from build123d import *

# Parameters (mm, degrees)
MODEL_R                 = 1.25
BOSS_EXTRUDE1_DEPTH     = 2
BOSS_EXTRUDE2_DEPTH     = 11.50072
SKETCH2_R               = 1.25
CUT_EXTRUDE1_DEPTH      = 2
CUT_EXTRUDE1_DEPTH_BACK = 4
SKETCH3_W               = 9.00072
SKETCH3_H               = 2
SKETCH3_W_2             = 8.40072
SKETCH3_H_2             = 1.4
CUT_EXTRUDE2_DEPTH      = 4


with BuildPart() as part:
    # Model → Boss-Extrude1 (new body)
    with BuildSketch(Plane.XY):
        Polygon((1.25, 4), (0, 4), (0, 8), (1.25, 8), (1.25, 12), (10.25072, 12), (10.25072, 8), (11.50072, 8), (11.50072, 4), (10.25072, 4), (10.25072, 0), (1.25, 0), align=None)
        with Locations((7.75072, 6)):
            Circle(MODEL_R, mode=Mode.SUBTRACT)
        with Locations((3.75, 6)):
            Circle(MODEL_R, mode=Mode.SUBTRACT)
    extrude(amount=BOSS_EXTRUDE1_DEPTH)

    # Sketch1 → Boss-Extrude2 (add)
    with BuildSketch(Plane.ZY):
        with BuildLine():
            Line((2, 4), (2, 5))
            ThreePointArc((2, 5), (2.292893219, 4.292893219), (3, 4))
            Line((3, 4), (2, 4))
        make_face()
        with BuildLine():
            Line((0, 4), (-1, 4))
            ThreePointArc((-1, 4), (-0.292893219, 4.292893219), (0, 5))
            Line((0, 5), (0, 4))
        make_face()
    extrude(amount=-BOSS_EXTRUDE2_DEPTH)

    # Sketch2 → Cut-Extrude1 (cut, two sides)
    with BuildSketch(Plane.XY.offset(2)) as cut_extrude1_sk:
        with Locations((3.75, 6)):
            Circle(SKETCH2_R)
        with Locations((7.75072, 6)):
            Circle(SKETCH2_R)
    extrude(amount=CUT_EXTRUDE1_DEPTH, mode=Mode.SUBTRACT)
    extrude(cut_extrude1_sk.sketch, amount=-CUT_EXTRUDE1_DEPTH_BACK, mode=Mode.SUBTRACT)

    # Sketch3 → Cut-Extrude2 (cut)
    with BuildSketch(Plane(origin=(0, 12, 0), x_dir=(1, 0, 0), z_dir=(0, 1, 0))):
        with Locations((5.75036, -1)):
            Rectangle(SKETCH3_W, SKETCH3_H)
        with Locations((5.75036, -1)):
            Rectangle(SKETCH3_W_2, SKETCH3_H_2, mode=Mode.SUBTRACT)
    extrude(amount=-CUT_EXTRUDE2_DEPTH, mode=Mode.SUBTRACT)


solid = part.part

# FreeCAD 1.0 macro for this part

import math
import FreeCAD as App
import Part
import Sketcher
from FreeCAD import Vector

doc = App.newDocument("Part")
params = doc.addObject("Spreadsheet::Sheet", "Params")
for row, (alias, value) in enumerate([
    ("sketch1_diameter", "2.5 mm"),
    ("sketch1_height", "4 mm"),
    ("sketch1_width", "1.25 mm"),
    ("pad1_length", "2 mm"),
    ("sketch2_radius", "1 mm"),
    ("pad2_length", "11.50072 mm"),
    ("sketch3_diameter", "2.5 mm"),
    ("sketch4_height", "2 mm"),
    ("sketch4_height2", "1.4 mm"),
    ("pocket2_length", "4 mm"),
], start=1):
    params.set(f"A{row}", alias)
    params.set(f"B{row}", "=" + value)
    params.setAlias(f"B{row}", alias)

body = doc.addObject("PartDesign::Body", "Body")

sketch1 = body.newObject("Sketcher::SketchObject", "Sketch")
sketch1.AttachmentSupport = (doc.getObject("XY_Plane"), [""])
sketch1.MapMode = "FlatFace"
sketch1.addGeometry(Part.LineSegment(Vector(0, 4, 0), Vector(1.2, 4, 0)), False)
sketch1.addGeometry(Part.LineSegment(Vector(1.2, 4, 0), Vector(1.2, 0, 0)), False)
sketch1.addGeometry(Part.LineSegment(Vector(1.2, 0, 0), Vector(10.3, 0, 0)), False)
sketch1.addGeometry(Part.LineSegment(Vector(10.3, 0, 0), Vector(10.3, 4, 0)), False)
sketch1.addGeometry(Part.LineSegment(Vector(10.3, 4, 0), Vector(11.5, 4, 0)), False)
sketch1.addGeometry(Part.LineSegment(Vector(11.5, 4, 0), Vector(11.5, 8, 0)), False)
sketch1.addGeometry(Part.LineSegment(Vector(11.5, 8, 0), Vector(10.3, 8, 0)), False)
sketch1.addGeometry(Part.LineSegment(Vector(10.3, 8, 0), Vector(10.3, 12, 0)), False)
sketch1.addGeometry(Part.LineSegment(Vector(10.3, 12, 0), Vector(1.2, 12, 0)), False)
sketch1.addGeometry(Part.LineSegment(Vector(1.2, 12, 0), Vector(1.2, 8, 0)), False)
sketch1.addGeometry(Part.LineSegment(Vector(1.2, 8, 0), Vector(0, 8, 0)), False)
sketch1.addGeometry(Part.LineSegment(Vector(0, 8, 0), Vector(0, 4, 0)), False)
sketch1.addGeometry(Part.Circle(Vector(7.8, 6, 0), Vector(0, 0, 1), 1.2), False)
sketch1.addGeometry(Part.Circle(Vector(3.8, 6, 0), Vector(0, 0, 1), 1.2), False)
sketch1.addConstraint(Sketcher.Constraint("Coincident", 0, 2, 1, 1))
sketch1.addConstraint(Sketcher.Constraint("Coincident", 1, 2, 2, 1))
sketch1.addConstraint(Sketcher.Constraint("Coincident", 2, 2, 3, 1))
sketch1.addConstraint(Sketcher.Constraint("Coincident", 3, 2, 4, 1))
sketch1.addConstraint(Sketcher.Constraint("Coincident", 4, 2, 5, 1))
sketch1.addConstraint(Sketcher.Constraint("Coincident", 5, 2, 6, 1))
sketch1.addConstraint(Sketcher.Constraint("Coincident", 6, 2, 7, 1))
sketch1.addConstraint(Sketcher.Constraint("Coincident", 7, 2, 8, 1))
sketch1.addConstraint(Sketcher.Constraint("Coincident", 8, 2, 9, 1))
sketch1.addConstraint(Sketcher.Constraint("Coincident", 9, 2, 10, 1))
sketch1.addConstraint(Sketcher.Constraint("Coincident", 10, 2, 11, 1))
sketch1.addConstraint(Sketcher.Constraint("Coincident", 11, 2, 0, 1))
sketch1.addConstraint(Sketcher.Constraint("Horizontal", 0))
sketch1.addConstraint(Sketcher.Constraint("Vertical", 1))
sketch1.addConstraint(Sketcher.Constraint("Horizontal", 2))
sketch1.addConstraint(Sketcher.Constraint("Vertical", 3))
sketch1.addConstraint(Sketcher.Constraint("Horizontal", 4))
sketch1.addConstraint(Sketcher.Constraint("Vertical", 5))
sketch1.addConstraint(Sketcher.Constraint("Horizontal", 6))
sketch1.addConstraint(Sketcher.Constraint("Vertical", 7))
sketch1.addConstraint(Sketcher.Constraint("Horizontal", 8))
sketch1.addConstraint(Sketcher.Constraint("Vertical", 9))
sketch1.addConstraint(Sketcher.Constraint("Horizontal", 10))
sketch1.addConstraint(Sketcher.Constraint("Vertical", 11))
sketch1.addConstraint(Sketcher.Constraint("Equal", 12, 13))
sketch1.addConstraint(Sketcher.Constraint("PointOnObject", 1, 2, -1))
sketch1.addConstraint(Sketcher.Constraint("PointOnObject", 10, 2, -2))
sketch1.addConstraint(Sketcher.Constraint("Horizontal", 12, 3, 13, 3))
sketch1.addConstraint(Sketcher.Constraint("Horizontal", 0, 2, 3, 2))
sketch1.addConstraint(Sketcher.Constraint("Horizontal", 6, 2, 9, 2))
sketch1.addConstraint(Sketcher.Constraint("Vertical", 3, 2, 6, 2))
sketch1.addConstraint(Sketcher.Constraint("Vertical", 1, 2, 8, 2))
sketch1.addConstraint(Sketcher.Constraint("Equal", 0, 4))
sketch1.addConstraint(Sketcher.Constraint("Equal", 3, 5))
sketch1.addConstraint(Sketcher.Constraint("Equal", 5, 7))
sketch1.addConstraint(Sketcher.Constraint("Diameter", 12, 2.5))
sketch1.addConstraint(Sketcher.Constraint("DistanceY", 1, 2, 1, 1, 4.0))
sketch1.addConstraint(Sketcher.Constraint("DistanceY", -1, 1, 12, 3, 6.0))
sketch1.addConstraint(Sketcher.Constraint("DistanceX", 0, 1, 0, 2, 1.25))
sketch1.addConstraint(Sketcher.Constraint("DistanceX", 0, 2, 13, 3, 2.5))
sketch1.addConstraint(Sketcher.Constraint("DistanceX", 12, 3, 2, 2, 2.5))
sketch1.addConstraint(Sketcher.Constraint("DistanceX", 2, 1, 2, 2, 9.00072))
sketch1.setExpression("Constraints[35]", "Params.sketch1_diameter")
sketch1.setExpression("Constraints[36]", "Params.sketch1_height")
sketch1.setExpression("Constraints[38]", "Params.sketch1_width")
pad1 = body.newObject("PartDesign::Pad", "Pad")
pad1.Profile = sketch1
pad1.setExpression("Length", "Params.pad1_length")

sketch2 = body.newObject("Sketcher::SketchObject", "Sketch001")
sketch2.AttachmentSupport = (doc.getObject("YZ_Plane"), [""])
sketch2.MapMode = "FlatFace"
sketch2.addGeometry(Part.LineSegment(Vector(5, 2, 0), Vector(4, 2, 0)), False)
sketch2.addGeometry(Part.LineSegment(Vector(4, 2, 0), Vector(4, 3, 0)), False)
sketch2.addGeometry(Part.ArcOfCircle(Part.Circle(Vector(5, 3, 0), Vector(0, 0, 1), 1), math.radians(-180), math.radians(-90)), False)
sketch2.addGeometry(Part.LineSegment(Vector(4, -1, 0), Vector(4, 0, 0)), False)
sketch2.addGeometry(Part.LineSegment(Vector(4, 0, 0), Vector(5, 0, 0)), False)
sketch2.addGeometry(Part.ArcOfCircle(Part.Circle(Vector(5, -1, 0), Vector(0, 0, 1), 1), math.radians(90), math.radians(180)), False)
sketch2.addConstraint(Sketcher.Constraint("Coincident", 0, 2, 1, 1))
sketch2.addConstraint(Sketcher.Constraint("Tangent", 1, 2, 2, 1))
sketch2.addConstraint(Sketcher.Constraint("Tangent", 2, 2, 0, 1))
sketch2.addConstraint(Sketcher.Constraint("Coincident", 3, 2, 4, 1))
sketch2.addConstraint(Sketcher.Constraint("Tangent", 4, 2, 5, 1))
sketch2.addConstraint(Sketcher.Constraint("Tangent", 5, 2, 3, 1))
sketch2.addConstraint(Sketcher.Constraint("Horizontal", 0))
sketch2.addConstraint(Sketcher.Constraint("Vertical", 1))
sketch2.addConstraint(Sketcher.Constraint("Vertical", 3))
sketch2.addConstraint(Sketcher.Constraint("Horizontal", 4))
sketch2.addConstraint(Sketcher.Constraint("Equal", 2, 5))
sketch2.addConstraint(Sketcher.Constraint("PointOnObject", 3, 2, -1))
sketch2.addConstraint(Sketcher.Constraint("Vertical", 2, 3, 5, 3))
sketch2.addConstraint(Sketcher.Constraint("Radius", 2, 1.0))
sketch2.addConstraint(Sketcher.Constraint("DistanceX", -1, 1, 2, 3, 5.0))
sketch2.addConstraint(Sketcher.Constraint("DistanceY", -1, 1, 2, 3, 3.0))
sketch2.setExpression("Constraints[13]", "Params.sketch2_radius")
pad2 = body.newObject("PartDesign::Pad", "Pad001")
pad2.Profile = sketch2
pad2.setExpression("Length", "Params.pad2_length")

sketch3 = body.newObject("Sketcher::SketchObject", "Sketch002")
sketch3.AttachmentSupport = (doc.getObject("XY_Plane"), [""])
sketch3.MapMode = "FlatFace"
sketch3.AttachmentOffset = App.Placement(Vector(0, 0, 2), App.Rotation())
sketch3.addGeometry(Part.Circle(Vector(3.8, 6, 0), Vector(0, 0, 1), 1.2), False)
sketch3.addGeometry(Part.Circle(Vector(7.8, 6, 0), Vector(0, 0, 1), 1.2), False)
sketch3.addConstraint(Sketcher.Constraint("Equal", 0, 1))
sketch3.addConstraint(Sketcher.Constraint("Horizontal", 0, 3, 1, 3))
sketch3.addConstraint(Sketcher.Constraint("Diameter", 0, 2.5))
sketch3.addConstraint(Sketcher.Constraint("DistanceY", -1, 1, 0, 3, 6.0))
sketch3.addConstraint(Sketcher.Constraint("DistanceX", -1, 1, 0, 3, 3.75))
sketch3.addConstraint(Sketcher.Constraint("DistanceX", -1, 1, 1, 3, 7.75072))
sketch3.setExpression("Constraints[2]", "Params.sketch3_diameter")
pocket1 = body.newObject("PartDesign::Pocket", "Pocket")
pocket1.Profile = sketch3
pocket1.Type = "ThroughAll"
pocket1.Midplane = True

sketch4 = body.newObject("Sketcher::SketchObject", "Sketch003")
sketch4.AttachmentSupport = (doc.getObject("XZ_Plane"), [""])
sketch4.MapMode = "FlatFace"
sketch4.AttachmentOffset = App.Placement(Vector(0, 0, -12), App.Rotation())
sketch4.addGeometry(Part.LineSegment(Vector(1.2, 0, 0), Vector(1.2, 2, 0)), False)
sketch4.addGeometry(Part.LineSegment(Vector(1.2, 2, 0), Vector(10.3, 2, 0)), False)
sketch4.addGeometry(Part.LineSegment(Vector(10.3, 2, 0), Vector(10.3, 0, 0)), False)
sketch4.addGeometry(Part.LineSegment(Vector(10.3, 0, 0), Vector(1.2, 0, 0)), False)
sketch4.addGeometry(Part.LineSegment(Vector(10, 1.7, 0), Vector(1.6, 1.7, 0)), False)
sketch4.addGeometry(Part.LineSegment(Vector(1.6, 1.7, 0), Vector(1.6, 0.3, 0)), False)
sketch4.addGeometry(Part.LineSegment(Vector(1.6, 0.3, 0), Vector(10, 0.3, 0)), False)
sketch4.addGeometry(Part.LineSegment(Vector(10, 0.3, 0), Vector(10, 1.7, 0)), False)
sketch4.addConstraint(Sketcher.Constraint("Coincident", 0, 2, 1, 1))
sketch4.addConstraint(Sketcher.Constraint("Coincident", 1, 2, 2, 1))
sketch4.addConstraint(Sketcher.Constraint("Coincident", 2, 2, 3, 1))
sketch4.addConstraint(Sketcher.Constraint("Coincident", 3, 2, 0, 1))
sketch4.addConstraint(Sketcher.Constraint("Coincident", 4, 2, 5, 1))
sketch4.addConstraint(Sketcher.Constraint("Coincident", 5, 2, 6, 1))
sketch4.addConstraint(Sketcher.Constraint("Coincident", 6, 2, 7, 1))
sketch4.addConstraint(Sketcher.Constraint("Coincident", 7, 2, 4, 1))
sketch4.addConstraint(Sketcher.Constraint("Vertical", 0))
sketch4.addConstraint(Sketcher.Constraint("Horizontal", 1))
sketch4.addConstraint(Sketcher.Constraint("Vertical", 2))
sketch4.addConstraint(Sketcher.Constraint("Horizontal", 3))
sketch4.addConstraint(Sketcher.Constraint("Horizontal", 4))
sketch4.addConstraint(Sketcher.Constraint("Vertical", 5))
sketch4.addConstraint(Sketcher.Constraint("Horizontal", 6))
sketch4.addConstraint(Sketcher.Constraint("Vertical", 7))
sketch4.addConstraint(Sketcher.Constraint("PointOnObject", 2, 2, -1))
sketch4.addConstraint(Sketcher.Constraint("DistanceY", 0, 1, 0, 2, 2.0))
sketch4.addConstraint(Sketcher.Constraint("DistanceY", 5, 2, 5, 1, 1.4))
sketch4.addConstraint(Sketcher.Constraint("DistanceY", -1, 1, 4, 2, 1.7))
sketch4.addConstraint(Sketcher.Constraint("DistanceX", 0, 2, 4, 2, 0.3))
sketch4.addConstraint(Sketcher.Constraint("DistanceX", 6, 2, 2, 2, 0.3))
sketch4.addConstraint(Sketcher.Constraint("DistanceX", -1, 1, 0, 2, 1.25))
sketch4.addConstraint(Sketcher.Constraint("DistanceX", 1, 1, 1, 2, 9.00072))
sketch4.setExpression("Constraints[17]", "Params.sketch4_height")
sketch4.setExpression("Constraints[18]", "Params.sketch4_height2")
pocket2 = body.newObject("PartDesign::Pocket", "Pocket001")
pocket2.Profile = sketch4
pocket2.setExpression("Length", "Params.pocket2_length")
pocket2.Reversed = True

doc.recompute()
